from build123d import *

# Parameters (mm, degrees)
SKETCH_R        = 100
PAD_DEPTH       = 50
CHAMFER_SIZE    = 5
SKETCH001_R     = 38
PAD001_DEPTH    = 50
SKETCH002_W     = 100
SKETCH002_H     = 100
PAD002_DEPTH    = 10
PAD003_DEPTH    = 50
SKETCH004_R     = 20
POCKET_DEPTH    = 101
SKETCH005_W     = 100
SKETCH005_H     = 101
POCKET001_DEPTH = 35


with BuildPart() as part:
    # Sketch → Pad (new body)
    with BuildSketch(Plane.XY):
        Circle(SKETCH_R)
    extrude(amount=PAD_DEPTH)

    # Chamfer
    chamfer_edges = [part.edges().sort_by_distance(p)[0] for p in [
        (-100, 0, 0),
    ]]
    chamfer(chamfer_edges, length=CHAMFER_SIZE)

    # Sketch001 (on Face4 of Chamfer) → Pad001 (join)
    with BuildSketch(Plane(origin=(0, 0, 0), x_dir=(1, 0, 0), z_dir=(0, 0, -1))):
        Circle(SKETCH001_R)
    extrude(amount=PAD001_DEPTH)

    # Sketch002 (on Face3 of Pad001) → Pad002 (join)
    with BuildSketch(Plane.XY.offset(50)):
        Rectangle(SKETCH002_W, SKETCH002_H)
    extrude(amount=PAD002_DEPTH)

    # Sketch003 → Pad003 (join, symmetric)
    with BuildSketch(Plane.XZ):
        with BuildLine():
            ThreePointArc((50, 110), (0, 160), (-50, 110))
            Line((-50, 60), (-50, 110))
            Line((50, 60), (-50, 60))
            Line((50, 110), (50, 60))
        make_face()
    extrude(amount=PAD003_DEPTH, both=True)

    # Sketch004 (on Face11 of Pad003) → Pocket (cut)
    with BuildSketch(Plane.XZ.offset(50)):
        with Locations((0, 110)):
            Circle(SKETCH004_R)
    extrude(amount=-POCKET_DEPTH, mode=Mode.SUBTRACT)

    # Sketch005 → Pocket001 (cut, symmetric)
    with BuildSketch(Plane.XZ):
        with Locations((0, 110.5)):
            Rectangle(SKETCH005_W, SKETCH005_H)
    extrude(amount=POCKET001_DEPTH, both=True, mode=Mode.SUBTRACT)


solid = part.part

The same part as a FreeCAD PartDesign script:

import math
import FreeCAD as App
import Part
import Sketcher
from FreeCAD import Vector
Q = App.Units.Quantity


def edges_at(feature, points):
    """Names of the edges that pass closest to the given points."""
    edges = feature.Shape.Edges
    near = lambda p: min(range(len(edges)), key=lambda i: edges[i].distToShape(Part.Vertex(*p))[0])
    return sorted({f"Edge{near(p) + 1}" for p in points})


def add_polygon(sketch, points):
    """Adds a closed chain of lines whose ends are joined by coincident constraints."""
    first, n = sketch.GeometryCount, len(points)
    for a, b in zip(points, points[1:] + points[:1]):
        sketch.addGeometry(Part.LineSegment(App.Vector(*a, 0), App.Vector(*b, 0)), False)
    for i in range(n):
        sketch.addConstraint(Sketcher.Constraint("Coincident", first + i, 2, first + (i + 1) % n, 1))

doc = App.newDocument("Part")
body = doc.addObject("PartDesign::Body", "Body")

# Sketch on XY plane
sketch1 = body.newObject("Sketcher::SketchObject", "Sketch")
sketch1.AttachmentSupport = (doc.getObject("XY_Plane"), [""])
sketch1.MapMode = "FlatFace"
sketch1.addGeometry(Part.Circle(Vector(0, 0, 0), Vector(0, 0, 1), 100), False)
sketch1.addConstraint(Sketcher.Constraint("Coincident", 0, 3, -1, 1))
sketch1.addConstraint(Sketcher.Constraint("Diameter", 0, Q("200 mm")))
pad1 = body.newObject("PartDesign::Pad", "Pad")
pad1.Profile = sketch1
pad1.Length = 50
doc.recompute()

chamfer = body.newObject("PartDesign::Chamfer", "Chamfer")
chamfer.Base = (pad1, edges_at(pad1, [(-100, 0, 0)]))
chamfer.Size = 5

# Sketch on XY plane
sketch2 = body.newObject("Sketcher::SketchObject", "Sketch001")
sketch2.AttachmentSupport = (doc.getObject("XY_Plane"), [""])
sketch2.MapMode = "FlatFace"
sketch2.addGeometry(Part.Circle(Vector(0, 0, 0), Vector(0, 0, 1), 38), False)
sketch2.addConstraint(Sketcher.Constraint("Coincident", 0, 3, -1, 1))
sketch2.addConstraint(Sketcher.Constraint("Diameter", 0, Q("76 mm")))
pad2 = body.newObject("PartDesign::Pad", "Pad001")
pad2.Profile = sketch2
pad2.Length = 50
pad2.Reversed = True

# Sketch on XY plane
sketch3 = body.newObject("Sketcher::SketchObject", "Sketch002")
sketch3.AttachmentSupport = (doc.getObject("XY_Plane"), [""])
sketch3.MapMode = "FlatFace"
sketch3.AttachmentOffset = App.Placement(Vector(0, 0, 50), App.Rotation())
add_polygon(sketch3, [(-50, 50), (-50, -50), (50, -50), (50, 50)])  # lines 0-3
sketch3.addConstraint(Sketcher.Constraint("Vertical", 0))
sketch3.addConstraint(Sketcher.Constraint("Horizontal", 1))
sketch3.addConstraint(Sketcher.Constraint("Vertical", 2))
sketch3.addConstraint(Sketcher.Constraint("Horizontal", 3))
sketch3.addConstraint(Sketcher.Constraint("Symmetric", 0, 2, 2, 2, -1, 1))
sketch3.addConstraint(Sketcher.Constraint("Equal", 3, 0))
sketch3.addConstraint(Sketcher.Constraint("DistanceX", 1, 1, 1, 2, Q("100 mm")))
pad3 = body.newObject("PartDesign::Pad", "Pad002")
pad3.Profile = sketch3
pad3.Length = 10

# Sketch on XZ plane
sketch4 = body.newObject("Sketcher::SketchObject", "Sketch003")
sketch4.AttachmentSupport = (doc.getObject("XZ_Plane"), [""])
sketch4.MapMode = "FlatFace"
sketch4.addGeometry(Part.ArcOfCircle(Part.Circle(Vector(0, 110, 0), Vector(0, 0, 1), 50), math.radians(0), math.radians(180)), False)
sketch4.addGeometry(Part.LineSegment(Vector(-50, 110, 0), Vector(-50, 60, 0)), False)
sketch4.addGeometry(Part.LineSegment(Vector(-50, 60, 0), Vector(50, 60, 0)), False)
sketch4.addGeometry(Part.LineSegment(Vector(50, 60, 0), Vector(50, 110, 0)), False)
sketch4.addConstraint(Sketcher.Constraint("Tangent", 0, 2, 1, 1))
sketch4.addConstraint(Sketcher.Constraint("Coincident", 1, 2, 2, 1))
sketch4.addConstraint(Sketcher.Constraint("Coincident", 2, 2, 3, 1))
sketch4.addConstraint(Sketcher.Constraint("Tangent", 3, 2, 0, 1))
sketch4.addConstraint(Sketcher.Constraint("Vertical", 1))
sketch4.addConstraint(Sketcher.Constraint("Horizontal", 2))
sketch4.addConstraint(Sketcher.Constraint("Vertical", 3))
sketch4.addConstraint(Sketcher.Constraint("PointOnObject", 0, 3, -2))
sketch4.addConstraint(Sketcher.Constraint("Radius", 0, Q("50 mm")))
sketch4.addConstraint(Sketcher.Constraint("DistanceY", 1, 2, 1, 1, Q("50 mm")))
sketch4.addConstraint(Sketcher.Constraint("DistanceY", -1, 1, 0, 3, Q("110 mm")))
pad4 = body.newObject("PartDesign::Pad", "Pad003")
pad4.Profile = sketch4
pad4.Length = 100
pad4.Midplane = True

# Sketch on XZ plane
sketch5 = body.newObject("Sketcher::SketchObject", "Sketch004")
sketch5.AttachmentSupport = (doc.getObject("XZ_Plane"), [""])
sketch5.MapMode = "FlatFace"
sketch5.AttachmentOffset = App.Placement(Vector(0, 0, 50), App.Rotation())
sketch5.addGeometry(Part.Circle(Vector(0, 110, 0), Vector(0, 0, 1), 20), False)
sketch5.addConstraint(Sketcher.Constraint("PointOnObject", 0, 3, -2))
sketch5.addConstraint(Sketcher.Constraint("Diameter", 0, Q("40 mm")))
sketch5.addConstraint(Sketcher.Constraint("DistanceY", -1, 1, 0, 3, Q("110 mm")))
pocket1 = body.newObject("PartDesign::Pocket", "Pocket")
pocket1.Profile = sketch5
pocket1.Length = 101

# Sketch on XZ plane
sketch6 = body.newObject("Sketcher::SketchObject", "Sketch005")
sketch6.AttachmentSupport = (doc.getObject("XZ_Plane"), [""])
sketch6.MapMode = "FlatFace"
add_polygon(sketch6, [(-50, 161), (-50, 60), (50, 60), (50, 161)])  # lines 0-3
sketch6.addConstraint(Sketcher.Constraint("Vertical", 0))
sketch6.addConstraint(Sketcher.Constraint("Horizontal", 1))
sketch6.addConstraint(Sketcher.Constraint("Vertical", 2))
sketch6.addConstraint(Sketcher.Constraint("Horizontal", 3))
sketch6.addConstraint(Sketcher.Constraint("DistanceX", 1, 1, 1, 2, Q("100 mm")))
sketch6.addConstraint(Sketcher.Constraint("DistanceY", 0, 2, 0, 1, Q("101 mm")))
sketch6.addConstraint(Sketcher.Constraint("DistanceX", 0, 2, -1, 1, Q("50 mm")))
sketch6.addConstraint(Sketcher.Constraint("DistanceY", -1, 1, 0, 2, Q("60 mm")))
pocket2 = body.newObject("PartDesign::Pocket", "Pocket001")
pocket2.Profile = sketch6
pocket2.Length = 70
pocket2.Midplane = True

doc.recompute()
